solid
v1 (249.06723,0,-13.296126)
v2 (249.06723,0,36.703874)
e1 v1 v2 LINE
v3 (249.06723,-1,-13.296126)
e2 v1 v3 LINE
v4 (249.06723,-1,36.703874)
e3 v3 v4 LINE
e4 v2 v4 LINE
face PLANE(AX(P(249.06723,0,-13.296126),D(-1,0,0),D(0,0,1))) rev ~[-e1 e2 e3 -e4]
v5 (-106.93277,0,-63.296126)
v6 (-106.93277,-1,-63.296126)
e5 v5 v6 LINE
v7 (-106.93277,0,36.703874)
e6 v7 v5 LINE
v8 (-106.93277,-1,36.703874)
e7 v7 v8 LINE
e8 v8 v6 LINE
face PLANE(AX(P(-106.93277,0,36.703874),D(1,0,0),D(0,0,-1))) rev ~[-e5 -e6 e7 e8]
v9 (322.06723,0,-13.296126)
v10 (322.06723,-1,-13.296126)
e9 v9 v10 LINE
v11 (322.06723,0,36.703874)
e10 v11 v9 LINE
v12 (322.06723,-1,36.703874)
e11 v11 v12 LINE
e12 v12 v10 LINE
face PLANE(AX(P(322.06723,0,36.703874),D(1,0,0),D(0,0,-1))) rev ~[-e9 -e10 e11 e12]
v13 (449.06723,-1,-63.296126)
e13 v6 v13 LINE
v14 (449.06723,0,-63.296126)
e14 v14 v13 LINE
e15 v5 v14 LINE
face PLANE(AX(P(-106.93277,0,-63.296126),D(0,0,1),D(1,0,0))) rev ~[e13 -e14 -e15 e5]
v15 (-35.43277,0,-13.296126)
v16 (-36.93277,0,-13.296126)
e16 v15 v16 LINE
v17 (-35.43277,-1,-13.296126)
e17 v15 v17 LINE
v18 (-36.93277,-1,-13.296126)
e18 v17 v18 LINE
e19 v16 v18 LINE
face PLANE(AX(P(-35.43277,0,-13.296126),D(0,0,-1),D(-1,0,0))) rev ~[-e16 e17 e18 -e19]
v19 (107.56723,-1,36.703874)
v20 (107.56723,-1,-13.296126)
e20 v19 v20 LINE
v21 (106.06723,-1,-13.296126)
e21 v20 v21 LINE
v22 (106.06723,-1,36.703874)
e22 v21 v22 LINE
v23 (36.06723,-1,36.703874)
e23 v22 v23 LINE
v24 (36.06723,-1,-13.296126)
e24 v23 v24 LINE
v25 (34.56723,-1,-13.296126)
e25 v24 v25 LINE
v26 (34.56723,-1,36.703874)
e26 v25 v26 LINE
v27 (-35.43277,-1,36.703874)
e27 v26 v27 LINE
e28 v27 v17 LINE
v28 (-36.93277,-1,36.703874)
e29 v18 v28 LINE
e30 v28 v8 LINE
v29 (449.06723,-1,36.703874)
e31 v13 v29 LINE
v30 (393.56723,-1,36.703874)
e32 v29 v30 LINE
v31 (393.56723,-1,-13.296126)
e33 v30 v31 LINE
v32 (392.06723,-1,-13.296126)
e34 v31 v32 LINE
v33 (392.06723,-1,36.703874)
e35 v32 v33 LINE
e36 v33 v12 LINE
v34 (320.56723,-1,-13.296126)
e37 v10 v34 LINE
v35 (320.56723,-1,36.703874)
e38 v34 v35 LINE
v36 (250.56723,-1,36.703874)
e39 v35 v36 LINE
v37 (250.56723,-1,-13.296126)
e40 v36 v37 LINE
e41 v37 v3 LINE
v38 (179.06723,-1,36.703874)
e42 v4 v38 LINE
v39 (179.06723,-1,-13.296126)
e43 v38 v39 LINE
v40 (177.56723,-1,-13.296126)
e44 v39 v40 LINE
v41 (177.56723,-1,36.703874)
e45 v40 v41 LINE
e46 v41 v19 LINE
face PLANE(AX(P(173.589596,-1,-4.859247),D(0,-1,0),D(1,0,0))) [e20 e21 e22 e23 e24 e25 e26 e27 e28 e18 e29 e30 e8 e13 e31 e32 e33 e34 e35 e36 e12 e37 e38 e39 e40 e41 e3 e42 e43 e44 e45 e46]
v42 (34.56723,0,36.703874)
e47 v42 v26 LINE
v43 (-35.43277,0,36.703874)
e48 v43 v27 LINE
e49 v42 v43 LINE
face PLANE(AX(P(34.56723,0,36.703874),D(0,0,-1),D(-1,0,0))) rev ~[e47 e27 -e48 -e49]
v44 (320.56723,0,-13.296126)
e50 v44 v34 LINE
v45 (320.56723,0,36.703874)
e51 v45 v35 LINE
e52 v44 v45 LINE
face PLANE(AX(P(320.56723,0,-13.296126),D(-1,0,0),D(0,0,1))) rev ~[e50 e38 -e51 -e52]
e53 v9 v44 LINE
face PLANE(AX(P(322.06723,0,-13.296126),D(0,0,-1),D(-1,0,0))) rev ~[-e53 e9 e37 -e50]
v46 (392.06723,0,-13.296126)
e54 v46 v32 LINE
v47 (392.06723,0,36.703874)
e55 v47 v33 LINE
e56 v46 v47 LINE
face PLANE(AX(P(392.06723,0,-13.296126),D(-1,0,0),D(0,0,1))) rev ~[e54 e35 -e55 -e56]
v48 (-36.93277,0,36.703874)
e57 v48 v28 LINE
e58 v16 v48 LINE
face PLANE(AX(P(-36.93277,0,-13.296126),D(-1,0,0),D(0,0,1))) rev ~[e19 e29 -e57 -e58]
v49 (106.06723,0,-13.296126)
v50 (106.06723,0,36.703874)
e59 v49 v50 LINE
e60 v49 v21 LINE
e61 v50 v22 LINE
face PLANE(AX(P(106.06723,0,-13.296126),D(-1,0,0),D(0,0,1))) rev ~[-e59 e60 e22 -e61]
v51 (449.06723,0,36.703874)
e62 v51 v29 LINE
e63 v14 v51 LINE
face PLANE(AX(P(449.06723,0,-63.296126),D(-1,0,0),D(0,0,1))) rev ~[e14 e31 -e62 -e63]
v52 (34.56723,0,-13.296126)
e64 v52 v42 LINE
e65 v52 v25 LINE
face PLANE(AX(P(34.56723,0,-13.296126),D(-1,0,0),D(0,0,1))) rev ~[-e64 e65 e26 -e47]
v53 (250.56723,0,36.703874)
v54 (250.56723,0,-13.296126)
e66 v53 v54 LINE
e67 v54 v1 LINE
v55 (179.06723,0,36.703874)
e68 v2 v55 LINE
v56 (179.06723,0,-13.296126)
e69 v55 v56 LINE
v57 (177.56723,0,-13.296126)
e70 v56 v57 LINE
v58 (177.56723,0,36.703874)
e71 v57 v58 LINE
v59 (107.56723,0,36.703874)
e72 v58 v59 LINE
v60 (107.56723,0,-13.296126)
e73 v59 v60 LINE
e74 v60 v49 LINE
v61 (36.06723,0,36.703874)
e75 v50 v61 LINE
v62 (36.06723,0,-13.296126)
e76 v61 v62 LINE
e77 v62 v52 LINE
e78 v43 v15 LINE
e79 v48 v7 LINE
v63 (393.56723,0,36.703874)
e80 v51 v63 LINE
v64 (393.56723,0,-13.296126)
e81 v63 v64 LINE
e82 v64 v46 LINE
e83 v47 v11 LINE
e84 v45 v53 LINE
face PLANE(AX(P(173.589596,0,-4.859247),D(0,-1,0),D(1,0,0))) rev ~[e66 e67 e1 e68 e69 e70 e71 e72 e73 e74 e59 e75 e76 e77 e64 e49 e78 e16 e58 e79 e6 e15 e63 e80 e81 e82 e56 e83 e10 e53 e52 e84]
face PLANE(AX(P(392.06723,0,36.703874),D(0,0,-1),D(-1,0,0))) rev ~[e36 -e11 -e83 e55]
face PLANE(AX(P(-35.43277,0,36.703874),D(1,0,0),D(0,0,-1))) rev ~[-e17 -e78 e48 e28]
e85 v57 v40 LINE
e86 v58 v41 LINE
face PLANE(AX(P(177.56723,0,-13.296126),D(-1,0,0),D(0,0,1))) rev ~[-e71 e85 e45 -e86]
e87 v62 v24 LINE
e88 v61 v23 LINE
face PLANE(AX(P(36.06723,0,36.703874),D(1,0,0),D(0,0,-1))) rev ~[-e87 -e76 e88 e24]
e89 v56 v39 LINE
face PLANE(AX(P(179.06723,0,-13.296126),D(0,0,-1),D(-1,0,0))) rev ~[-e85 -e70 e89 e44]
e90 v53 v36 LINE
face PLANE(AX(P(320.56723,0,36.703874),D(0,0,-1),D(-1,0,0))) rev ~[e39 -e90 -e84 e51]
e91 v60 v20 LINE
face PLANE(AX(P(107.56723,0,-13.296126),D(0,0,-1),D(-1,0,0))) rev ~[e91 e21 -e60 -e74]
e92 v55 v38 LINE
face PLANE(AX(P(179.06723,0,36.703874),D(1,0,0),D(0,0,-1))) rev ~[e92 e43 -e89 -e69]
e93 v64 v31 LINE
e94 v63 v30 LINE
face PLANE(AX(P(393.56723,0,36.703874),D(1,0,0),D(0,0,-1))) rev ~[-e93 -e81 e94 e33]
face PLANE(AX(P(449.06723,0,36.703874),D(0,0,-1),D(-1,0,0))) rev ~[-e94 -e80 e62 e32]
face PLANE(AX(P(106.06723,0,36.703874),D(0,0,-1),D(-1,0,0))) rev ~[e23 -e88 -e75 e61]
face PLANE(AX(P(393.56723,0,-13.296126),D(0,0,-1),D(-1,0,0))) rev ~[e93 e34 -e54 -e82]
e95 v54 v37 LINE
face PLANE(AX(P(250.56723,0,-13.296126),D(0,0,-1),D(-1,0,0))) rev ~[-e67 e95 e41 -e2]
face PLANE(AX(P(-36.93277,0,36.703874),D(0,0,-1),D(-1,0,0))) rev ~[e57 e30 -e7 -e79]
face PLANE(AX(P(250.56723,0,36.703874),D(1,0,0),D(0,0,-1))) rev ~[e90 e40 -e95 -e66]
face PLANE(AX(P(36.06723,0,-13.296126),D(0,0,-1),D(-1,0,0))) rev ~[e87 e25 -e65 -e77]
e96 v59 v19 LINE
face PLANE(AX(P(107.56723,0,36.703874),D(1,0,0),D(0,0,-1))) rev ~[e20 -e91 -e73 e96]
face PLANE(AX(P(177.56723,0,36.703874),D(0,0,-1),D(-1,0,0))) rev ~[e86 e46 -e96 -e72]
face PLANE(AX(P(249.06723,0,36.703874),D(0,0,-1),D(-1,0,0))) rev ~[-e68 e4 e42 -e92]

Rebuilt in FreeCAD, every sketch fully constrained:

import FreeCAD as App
import Part
import Sketcher
from FreeCAD import Vector


def add_polygon(sketch, points):
    """Adds a closed chain of lines whose ends are joined by coincident constraints."""
    first, n = sketch.GeometryCount, len(points)
    for a, b in zip(points, points[1:] + points[:1]):
        sketch.addGeometry(Part.LineSegment(App.Vector(*a, 0), App.Vector(*b, 0)), False)
    for i in range(n):
        sketch.addConstraint(Sketcher.Constraint("Coincident", first + i, 2, first + (i + 1) % n, 1))

doc = App.newDocument("Part")
params = doc.addObject("Spreadsheet::Sheet", "Params")
for row, (alias, value) in enumerate([
    ("sketch1_width", "556 mm"),
    ("sketch1_width2", "70 mm"),
    ("sketch1_height", "100 mm"),
    ("sketch1_height2", "50 mm"),
    ("sketch1_width3", "55.5 mm"),
    ("pad1_length", "1 mm"),
], start=1):
    params.set(f"A{row}", alias)
    params.set(f"B{row}", "=" + value)
    params.setAlias(f"B{row}", alias)

body = doc.addObject("PartDesign::Body", "Body")

# Sketch on XZ plane
sketch1 = body.newObject("Sketcher::SketchObject", "Sketch")
sketch1.AttachmentSupport = (doc.getObject("XZ_Plane"), [""])
sketch1.MapMode = "FlatFace"
add_polygon(sketch1, [(-106.9, 36.7), (-106.9, -63.3), (449.1, -63.3), (449.1, 36.7), (393.6, 36.7), (393.6, -13.3), (392.1, -13.3), (392.1, 36.7), (322.1, 36.7), (322.1, -13.3), (320.6, -13.3), (320.6, 36.7), (250.6, 36.7), (250.6, -13.3), (249.1, -13.3), (249.1, 36.7), (179.1, 36.7), (179.1, -13.3), (177.6, -13.3), (177.6, 36.7), (107.6, 36.7), (107.6, -13.3), (106.1, -13.3), (106.1, 36.7), (36.1, 36.7), (36.1, -13.3), (34.6, -13.3), (34.6, 36.7), (-35.4, 36.7), (-35.4, -13.3), (-36.9, -13.3), (-36.9, 36.7)])  # lines 0-31
sketch1.addConstraint([
    Sketcher.Constraint("Vertical", 0),
    Sketcher.Constraint("Horizontal", 1),
    Sketcher.Constraint("Vertical", 2),
    Sketcher.Constraint("Horizontal", 3),
    Sketcher.Constraint("Vertical", 4),
    Sketcher.Constraint("Horizontal", 5),
    Sketcher.Constraint("Vertical", 6),
    Sketcher.Constraint("Horizontal", 7),
    Sketcher.Constraint("Vertical", 8),
    Sketcher.Constraint("Horizontal", 9),
    Sketcher.Constraint("Vertical", 10),
    Sketcher.Constraint("Horizontal", 11),
    Sketcher.Constraint("Vertical", 12),
    Sketcher.Constraint("Horizontal", 13),
    Sketcher.Constraint("Vertical", 14),
    Sketcher.Constraint("Horizontal", 15),
    Sketcher.Constraint("Vertical", 16),
    Sketcher.Constraint("Horizontal", 17),
    Sketcher.Constraint("Vertical", 18),
    Sketcher.Constraint("Horizontal", 19),
    Sketcher.Constraint("Vertical", 20),
    Sketcher.Constraint("Horizontal", 21),
    Sketcher.Constraint("Vertical", 22),
    Sketcher.Constraint("Horizontal", 23),
    Sketcher.Constraint("Vertical", 24),
    Sketcher.Constraint("Horizontal", 25),
    Sketcher.Constraint("Vertical", 26),
    Sketcher.Constraint("Horizontal", 27),
    Sketcher.Constraint("Vertical", 28),
    Sketcher.Constraint("Horizontal", 29),
    Sketcher.Constraint("Vertical", 30),
    Sketcher.Constraint("Horizontal", 31),
    Sketcher.Constraint("Horizontal", 3, 2, 6, 2),
    Sketcher.Constraint("Horizontal", 5, 2, 8, 2),
    Sketcher.Constraint("Horizontal", 7, 2, 10, 2),
    Sketcher.Constraint("Horizontal", 9, 2, 12, 2),
    Sketcher.Constraint("Horizontal", 11, 2, 14, 2),
    Sketcher.Constraint("Horizontal", 13, 2, 16, 2),
    Sketcher.Constraint("Horizontal", 15, 2, 18, 2),
    Sketcher.Constraint("Horizontal", 17, 2, 20, 2),
    Sketcher.Constraint("Horizontal", 19, 2, 22, 2),
    Sketcher.Constraint("Horizontal", 21, 2, 24, 2),
    Sketcher.Constraint("Horizontal", 23, 2, 26, 2),
    Sketcher.Constraint("Horizontal", 25, 2, 28, 2),
    Sketcher.Constraint("Horizontal", 27, 2, 30, 2),
    Sketcher.Constraint("Equal", 5, 9),
    Sketcher.Constraint("Equal", 7, 11),
    Sketcher.Constraint("Equal", 9, 13),
    Sketcher.Constraint("Equal", 11, 15),
    Sketcher.Constraint("Equal", 13, 17),
    Sketcher.Constraint("Equal", 15, 19),
    Sketcher.Constraint("Equal", 17, 21),
    Sketcher.Constraint("Equal", 19, 23),
    Sketcher.Constraint("Equal", 21, 25),
    Sketcher.Constraint("Equal", 23, 27),
    Sketcher.Constraint("Equal", 25, 29),
    Sketcher.Constraint("Equal", 27, 31),
    Sketcher.Constraint("DistanceX", 1, 1, 1, 2, 556.0),
    Sketcher.Constraint("DistanceX", 7, 2, 7, 1, 70.0),
    Sketcher.Constraint("DistanceY", 0, 2, 0, 1, 100.0),
    Sketcher.Constraint("DistanceY", 4, 2, 4, 1, 50.0),
    Sketcher.Constraint("DistanceX", 3, 2, 3, 1, 55.5),
    Sketcher.Constraint("DistanceX", 0, 2, -1, 1, 106.93277),
    Sketcher.Constraint("DistanceY", 0, 2, -1, 1, 63.296126),
])
sketch1.setExpression("Constraints[89]", "Params.sketch1_width")
sketch1.setExpression("Constraints[90]", "Params.sketch1_width2")
sketch1.setExpression("Constraints[91]", "Params.sketch1_height")
sketch1.setExpression("Constraints[92]", "Params.sketch1_height2")
sketch1.setExpression("Constraints[93]", "Params.sketch1_width3")
pad1 = body.newObject("PartDesign::Pad", "Pad")
pad1.Profile = sketch1
pad1.setExpression("Length", "Params.pad1_length")

doc.recompute()
